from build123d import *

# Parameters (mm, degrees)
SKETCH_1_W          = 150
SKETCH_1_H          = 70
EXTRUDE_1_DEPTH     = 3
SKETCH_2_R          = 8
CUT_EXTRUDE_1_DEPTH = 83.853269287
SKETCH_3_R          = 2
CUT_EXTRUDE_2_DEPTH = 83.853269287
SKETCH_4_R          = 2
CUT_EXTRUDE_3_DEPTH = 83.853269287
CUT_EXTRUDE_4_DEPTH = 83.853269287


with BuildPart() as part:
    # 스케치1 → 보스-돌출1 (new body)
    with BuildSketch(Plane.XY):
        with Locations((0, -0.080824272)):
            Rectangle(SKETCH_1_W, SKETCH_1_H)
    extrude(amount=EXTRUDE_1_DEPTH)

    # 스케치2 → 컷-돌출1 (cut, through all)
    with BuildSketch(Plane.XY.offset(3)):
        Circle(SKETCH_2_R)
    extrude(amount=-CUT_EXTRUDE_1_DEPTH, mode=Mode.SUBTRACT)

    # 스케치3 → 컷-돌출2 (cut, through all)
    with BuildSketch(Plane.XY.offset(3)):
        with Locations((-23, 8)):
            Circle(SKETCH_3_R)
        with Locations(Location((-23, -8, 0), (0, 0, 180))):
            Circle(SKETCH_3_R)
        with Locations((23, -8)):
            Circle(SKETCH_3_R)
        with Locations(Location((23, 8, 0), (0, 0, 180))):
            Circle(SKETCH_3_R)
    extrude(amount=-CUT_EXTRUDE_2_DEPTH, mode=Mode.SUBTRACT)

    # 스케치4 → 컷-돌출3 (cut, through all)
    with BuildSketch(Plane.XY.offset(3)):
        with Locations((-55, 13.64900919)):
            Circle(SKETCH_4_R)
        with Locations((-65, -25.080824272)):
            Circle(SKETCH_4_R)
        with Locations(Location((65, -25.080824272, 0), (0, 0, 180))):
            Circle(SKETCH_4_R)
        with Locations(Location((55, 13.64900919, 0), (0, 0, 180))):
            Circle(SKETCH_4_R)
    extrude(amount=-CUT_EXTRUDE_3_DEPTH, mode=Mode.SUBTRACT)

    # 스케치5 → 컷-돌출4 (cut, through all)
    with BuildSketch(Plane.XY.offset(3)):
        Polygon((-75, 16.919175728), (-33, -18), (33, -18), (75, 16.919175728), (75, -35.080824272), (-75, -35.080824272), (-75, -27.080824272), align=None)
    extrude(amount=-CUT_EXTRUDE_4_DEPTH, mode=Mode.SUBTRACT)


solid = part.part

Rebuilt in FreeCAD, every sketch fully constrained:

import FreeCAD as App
import Part
import Sketcher
from FreeCAD import Vector
Q = App.Units.Quantity


def add_polygon(sketch, points):
    """Adds a closed chain of lines whose ends are joined by coincident constraints."""
    first, n = sketch.GeometryCount, len(points)
    for a, b in zip(points, points[1:] + points[:1]):
        sketch.addGeometry(Part.LineSegment(App.Vector(*a, 0), App.Vector(*b, 0)), False)
    for i in range(n):
        sketch.addConstraint(Sketcher.Constraint("Coincident", first + i, 2, first + (i + 1) % n, 1))

doc = App.newDocument("Part")
body = doc.addObject("PartDesign::Body", "Body")

# Sketch on XY plane
sketch1 = body.newObject("Sketcher::SketchObject", "Sketch")
sketch1.AttachmentSupport = (doc.getObject("XY_Plane"), [""])
sketch1.MapMode = "FlatFace"
add_polygon(sketch1, [(-75, 35), (-75, -35), (75, -35), (75, 35)])  # lines 0-3
sketch1.addConstraint(Sketcher.Constraint("Vertical", 0))
sketch1.addConstraint(Sketcher.Constraint("Horizontal", 1))
sketch1.addConstraint(Sketcher.Constraint("Vertical", 2))
sketch1.addConstraint(Sketcher.Constraint("Horizontal", 3))
sketch1.addConstraint(Sketcher.Constraint("DistanceX", 1, 1, 1, 2, Q("150 mm")))
sketch1.addConstraint(Sketcher.Constraint("DistanceY", 0, 2, 0, 1, Q("70 mm")))
sketch1.addConstraint(Sketcher.Constraint("DistanceX", 0, 2, -1, 1, Q("75 mm")))
sketch1.addConstraint(Sketcher.Constraint("DistanceY", 0, 2, -1, 1, Q("35.080824 mm")))
pad1 = body.newObject("PartDesign::Pad", "Pad")
pad1.Profile = sketch1
pad1.Length = 3

# Sketch on XY plane
sketch2 = body.newObject("Sketcher::SketchObject", "Sketch001")
sketch2.AttachmentSupport = (doc.getObject("XY_Plane"), [""])
sketch2.MapMode = "FlatFace"
sketch2.AttachmentOffset = App.Placement(Vector(0, 0, 3), App.Rotation())
sketch2.addGeometry(Part.Circle(Vector(0, 0, 0), Vector(0, 0, 1), 8), False)
sketch2.addConstraint(Sketcher.Constraint("Coincident", 0, 3, -1, 1))
sketch2.addConstraint(Sketcher.Constraint("Diameter", 0, Q("16 mm")))
pocket1 = body.newObject("PartDesign::Pocket", "Pocket")
pocket1.Profile = sketch2
pocket1.Type = "ThroughAll"

# Sketch on XY plane
sketch3 = body.newObject("Sketcher::SketchObject", "Sketch002")
sketch3.AttachmentSupport = (doc.getObject("XY_Plane"), [""])
sketch3.MapMode = "FlatFace"
sketch3.AttachmentOffset = App.Placement(Vector(0, 0, 3), App.Rotation())
sketch3.addGeometry(Part.Circle(Vector(-23, 8, 0), Vector(0, 0, 1), 2), False)
sketch3.addGeometry(Part.Circle(Vector(-23, -8, 0), Vector(0, 0, 1), 2), False)
sketch3.addGeometry(Part.Circle(Vector(23, -8, 0), Vector(0, 0, 1), 2), False)
sketch3.addGeometry(Part.Circle(Vector(23, 8, 0), Vector(0, 0, 1), 2), False)
sketch3.addConstraint(Sketcher.Constraint("Equal", 0, 1))
sketch3.addConstraint(Sketcher.Constraint("Equal", 1, 2))
sketch3.addConstraint(Sketcher.Constraint("Equal", 2, 3))
sketch3.addConstraint(Sketcher.Constraint("Symmetric", 0, 3, 2, 3, -1, 1))
sketch3.addConstraint(Sketcher.Constraint("Symmetric", 1, 3, 3, 3, -1, 1))
sketch3.addConstraint(Sketcher.Constraint("Symmetric", 1, 3, 2, 3, -2))
sketch3.addConstraint(Sketcher.Constraint("Diameter", 0, Q("4 mm")))
sketch3.addConstraint(Sketcher.Constraint("DistanceX", 0, 3, -1, 1, Q("23 mm")))
sketch3.addConstraint(Sketcher.Constraint("DistanceY", -1, 1, 0, 3, Q("8 mm")))
pocket2 = body.newObject("PartDesign::Pocket", "Pocket001")
pocket2.Profile = sketch3
pocket2.Type = "ThroughAll"

# Sketch on XY plane
sketch4 = body.newObject("Sketcher::SketchObject", "Sketch003")
sketch4.AttachmentSupport = (doc.getObject("XY_Plane"), [""])
sketch4.MapMode = "FlatFace"
sketch4.AttachmentOffset = App.Placement(Vector(0, 0, 3), App.Rotation())
sketch4.addGeometry(Part.Circle(Vector(-55, 13.6, 0), Vector(0, 0, 1), 2), False)
sketch4.addGeometry(Part.Circle(Vector(-65, -25.1, 0), Vector(0, 0, 1), 2), False)
sketch4.addGeometry(Part.Circle(Vector(65, -25.1, 0), Vector(0, 0, 1), 2), False)
sketch4.addGeometry(Part.Circle(Vector(55, 13.6, 0), Vector(0, 0, 1), 2), False)
sketch4.addConstraint(Sketcher.Constraint("Equal", 0, 1))
sketch4.addConstraint(Sketcher.Constraint("Equal", 1, 2))
sketch4.addConstraint(Sketcher.Constraint("Equal", 2, 3))
sketch4.addConstraint(Sketcher.Constraint("Symmetric", 1, 3, 2, 3, -2))
sketch4.addConstraint(Sketcher.Constraint("Symmetric", 0, 3, 3, 3, -2))
sketch4.addConstraint(Sketcher.Constraint("Diameter", 0, Q("4 mm")))
sketch4.addConstraint(Sketcher.Constraint("DistanceX", 0, 3, -1, 1, Q("55 mm")))
sketch4.addConstraint(Sketcher.Constraint("DistanceX", 1, 3, -1, 1, Q("65 mm")))
sketch4.addConstraint(Sketcher.Constraint("DistanceY", -1, 1, 0, 3, Q("13.649009 mm")))
sketch4.addConstraint(Sketcher.Constraint("DistanceY", 1, 3, -1, 1, Q("25.080824 mm")))
pocket3 = body.newObject("PartDesign::Pocket", "Pocket002")
pocket3.Profile = sketch4
pocket3.Type = "ThroughAll"

# Sketch on XY plane
sketch5 = body.newObject("Sketcher::SketchObject", "Sketch004")
sketch5.AttachmentSupport = (doc.getObject("XY_Plane"), [""])
sketch5.MapMode = "FlatFace"
sketch5.AttachmentOffset = App.Placement(Vector(0, 0, 3), App.Rotation())
add_polygon(sketch5, [(-33, -18), (-75, 17), (-75, -35), (75, -35), (75, 17), (33, -18)])  # lines 0-5
sketch5.addConstraint(Sketcher.Constraint("Vertical", 1))
sketch5.addConstraint(Sketcher.Constraint("Horizontal", 2))
sketch5.addConstraint(Sketcher.Constraint("Vertical", 3))
sketch5.addConstraint(Sketcher.Constraint("Horizontal", 5))
sketch5.addConstraint(Sketcher.Constraint("Symmetric", 0, 2, 3, 2, -2))
sketch5.addConstraint(Sketcher.Constraint("Equal", 0, 4))
sketch5.addConstraint(Sketcher.Constraint("DistanceX", 2, 1, 2, 2, Q("150 mm")))
sketch5.addConstraint(Sketcher.Constraint("DistanceX", 5, 2, 5, 1, Q("66 mm")))
sketch5.addConstraint(Sketcher.Constraint("DistanceY", 1, 2, 1, 1, Q("52 mm")))
sketch5.addConstraint(Sketcher.Constraint("DistanceY", 4, 2, -1, 1, Q("18 mm")))
sketch5.addConstraint(Sketcher.Constraint("Distance", 0, Q("54.620041 mm")))
pocket4 = body.newObject("PartDesign::Pocket", "Pocket003")
pocket4.Profile = sketch5
pocket4.Type = "ThroughAll"

doc.recompute()
